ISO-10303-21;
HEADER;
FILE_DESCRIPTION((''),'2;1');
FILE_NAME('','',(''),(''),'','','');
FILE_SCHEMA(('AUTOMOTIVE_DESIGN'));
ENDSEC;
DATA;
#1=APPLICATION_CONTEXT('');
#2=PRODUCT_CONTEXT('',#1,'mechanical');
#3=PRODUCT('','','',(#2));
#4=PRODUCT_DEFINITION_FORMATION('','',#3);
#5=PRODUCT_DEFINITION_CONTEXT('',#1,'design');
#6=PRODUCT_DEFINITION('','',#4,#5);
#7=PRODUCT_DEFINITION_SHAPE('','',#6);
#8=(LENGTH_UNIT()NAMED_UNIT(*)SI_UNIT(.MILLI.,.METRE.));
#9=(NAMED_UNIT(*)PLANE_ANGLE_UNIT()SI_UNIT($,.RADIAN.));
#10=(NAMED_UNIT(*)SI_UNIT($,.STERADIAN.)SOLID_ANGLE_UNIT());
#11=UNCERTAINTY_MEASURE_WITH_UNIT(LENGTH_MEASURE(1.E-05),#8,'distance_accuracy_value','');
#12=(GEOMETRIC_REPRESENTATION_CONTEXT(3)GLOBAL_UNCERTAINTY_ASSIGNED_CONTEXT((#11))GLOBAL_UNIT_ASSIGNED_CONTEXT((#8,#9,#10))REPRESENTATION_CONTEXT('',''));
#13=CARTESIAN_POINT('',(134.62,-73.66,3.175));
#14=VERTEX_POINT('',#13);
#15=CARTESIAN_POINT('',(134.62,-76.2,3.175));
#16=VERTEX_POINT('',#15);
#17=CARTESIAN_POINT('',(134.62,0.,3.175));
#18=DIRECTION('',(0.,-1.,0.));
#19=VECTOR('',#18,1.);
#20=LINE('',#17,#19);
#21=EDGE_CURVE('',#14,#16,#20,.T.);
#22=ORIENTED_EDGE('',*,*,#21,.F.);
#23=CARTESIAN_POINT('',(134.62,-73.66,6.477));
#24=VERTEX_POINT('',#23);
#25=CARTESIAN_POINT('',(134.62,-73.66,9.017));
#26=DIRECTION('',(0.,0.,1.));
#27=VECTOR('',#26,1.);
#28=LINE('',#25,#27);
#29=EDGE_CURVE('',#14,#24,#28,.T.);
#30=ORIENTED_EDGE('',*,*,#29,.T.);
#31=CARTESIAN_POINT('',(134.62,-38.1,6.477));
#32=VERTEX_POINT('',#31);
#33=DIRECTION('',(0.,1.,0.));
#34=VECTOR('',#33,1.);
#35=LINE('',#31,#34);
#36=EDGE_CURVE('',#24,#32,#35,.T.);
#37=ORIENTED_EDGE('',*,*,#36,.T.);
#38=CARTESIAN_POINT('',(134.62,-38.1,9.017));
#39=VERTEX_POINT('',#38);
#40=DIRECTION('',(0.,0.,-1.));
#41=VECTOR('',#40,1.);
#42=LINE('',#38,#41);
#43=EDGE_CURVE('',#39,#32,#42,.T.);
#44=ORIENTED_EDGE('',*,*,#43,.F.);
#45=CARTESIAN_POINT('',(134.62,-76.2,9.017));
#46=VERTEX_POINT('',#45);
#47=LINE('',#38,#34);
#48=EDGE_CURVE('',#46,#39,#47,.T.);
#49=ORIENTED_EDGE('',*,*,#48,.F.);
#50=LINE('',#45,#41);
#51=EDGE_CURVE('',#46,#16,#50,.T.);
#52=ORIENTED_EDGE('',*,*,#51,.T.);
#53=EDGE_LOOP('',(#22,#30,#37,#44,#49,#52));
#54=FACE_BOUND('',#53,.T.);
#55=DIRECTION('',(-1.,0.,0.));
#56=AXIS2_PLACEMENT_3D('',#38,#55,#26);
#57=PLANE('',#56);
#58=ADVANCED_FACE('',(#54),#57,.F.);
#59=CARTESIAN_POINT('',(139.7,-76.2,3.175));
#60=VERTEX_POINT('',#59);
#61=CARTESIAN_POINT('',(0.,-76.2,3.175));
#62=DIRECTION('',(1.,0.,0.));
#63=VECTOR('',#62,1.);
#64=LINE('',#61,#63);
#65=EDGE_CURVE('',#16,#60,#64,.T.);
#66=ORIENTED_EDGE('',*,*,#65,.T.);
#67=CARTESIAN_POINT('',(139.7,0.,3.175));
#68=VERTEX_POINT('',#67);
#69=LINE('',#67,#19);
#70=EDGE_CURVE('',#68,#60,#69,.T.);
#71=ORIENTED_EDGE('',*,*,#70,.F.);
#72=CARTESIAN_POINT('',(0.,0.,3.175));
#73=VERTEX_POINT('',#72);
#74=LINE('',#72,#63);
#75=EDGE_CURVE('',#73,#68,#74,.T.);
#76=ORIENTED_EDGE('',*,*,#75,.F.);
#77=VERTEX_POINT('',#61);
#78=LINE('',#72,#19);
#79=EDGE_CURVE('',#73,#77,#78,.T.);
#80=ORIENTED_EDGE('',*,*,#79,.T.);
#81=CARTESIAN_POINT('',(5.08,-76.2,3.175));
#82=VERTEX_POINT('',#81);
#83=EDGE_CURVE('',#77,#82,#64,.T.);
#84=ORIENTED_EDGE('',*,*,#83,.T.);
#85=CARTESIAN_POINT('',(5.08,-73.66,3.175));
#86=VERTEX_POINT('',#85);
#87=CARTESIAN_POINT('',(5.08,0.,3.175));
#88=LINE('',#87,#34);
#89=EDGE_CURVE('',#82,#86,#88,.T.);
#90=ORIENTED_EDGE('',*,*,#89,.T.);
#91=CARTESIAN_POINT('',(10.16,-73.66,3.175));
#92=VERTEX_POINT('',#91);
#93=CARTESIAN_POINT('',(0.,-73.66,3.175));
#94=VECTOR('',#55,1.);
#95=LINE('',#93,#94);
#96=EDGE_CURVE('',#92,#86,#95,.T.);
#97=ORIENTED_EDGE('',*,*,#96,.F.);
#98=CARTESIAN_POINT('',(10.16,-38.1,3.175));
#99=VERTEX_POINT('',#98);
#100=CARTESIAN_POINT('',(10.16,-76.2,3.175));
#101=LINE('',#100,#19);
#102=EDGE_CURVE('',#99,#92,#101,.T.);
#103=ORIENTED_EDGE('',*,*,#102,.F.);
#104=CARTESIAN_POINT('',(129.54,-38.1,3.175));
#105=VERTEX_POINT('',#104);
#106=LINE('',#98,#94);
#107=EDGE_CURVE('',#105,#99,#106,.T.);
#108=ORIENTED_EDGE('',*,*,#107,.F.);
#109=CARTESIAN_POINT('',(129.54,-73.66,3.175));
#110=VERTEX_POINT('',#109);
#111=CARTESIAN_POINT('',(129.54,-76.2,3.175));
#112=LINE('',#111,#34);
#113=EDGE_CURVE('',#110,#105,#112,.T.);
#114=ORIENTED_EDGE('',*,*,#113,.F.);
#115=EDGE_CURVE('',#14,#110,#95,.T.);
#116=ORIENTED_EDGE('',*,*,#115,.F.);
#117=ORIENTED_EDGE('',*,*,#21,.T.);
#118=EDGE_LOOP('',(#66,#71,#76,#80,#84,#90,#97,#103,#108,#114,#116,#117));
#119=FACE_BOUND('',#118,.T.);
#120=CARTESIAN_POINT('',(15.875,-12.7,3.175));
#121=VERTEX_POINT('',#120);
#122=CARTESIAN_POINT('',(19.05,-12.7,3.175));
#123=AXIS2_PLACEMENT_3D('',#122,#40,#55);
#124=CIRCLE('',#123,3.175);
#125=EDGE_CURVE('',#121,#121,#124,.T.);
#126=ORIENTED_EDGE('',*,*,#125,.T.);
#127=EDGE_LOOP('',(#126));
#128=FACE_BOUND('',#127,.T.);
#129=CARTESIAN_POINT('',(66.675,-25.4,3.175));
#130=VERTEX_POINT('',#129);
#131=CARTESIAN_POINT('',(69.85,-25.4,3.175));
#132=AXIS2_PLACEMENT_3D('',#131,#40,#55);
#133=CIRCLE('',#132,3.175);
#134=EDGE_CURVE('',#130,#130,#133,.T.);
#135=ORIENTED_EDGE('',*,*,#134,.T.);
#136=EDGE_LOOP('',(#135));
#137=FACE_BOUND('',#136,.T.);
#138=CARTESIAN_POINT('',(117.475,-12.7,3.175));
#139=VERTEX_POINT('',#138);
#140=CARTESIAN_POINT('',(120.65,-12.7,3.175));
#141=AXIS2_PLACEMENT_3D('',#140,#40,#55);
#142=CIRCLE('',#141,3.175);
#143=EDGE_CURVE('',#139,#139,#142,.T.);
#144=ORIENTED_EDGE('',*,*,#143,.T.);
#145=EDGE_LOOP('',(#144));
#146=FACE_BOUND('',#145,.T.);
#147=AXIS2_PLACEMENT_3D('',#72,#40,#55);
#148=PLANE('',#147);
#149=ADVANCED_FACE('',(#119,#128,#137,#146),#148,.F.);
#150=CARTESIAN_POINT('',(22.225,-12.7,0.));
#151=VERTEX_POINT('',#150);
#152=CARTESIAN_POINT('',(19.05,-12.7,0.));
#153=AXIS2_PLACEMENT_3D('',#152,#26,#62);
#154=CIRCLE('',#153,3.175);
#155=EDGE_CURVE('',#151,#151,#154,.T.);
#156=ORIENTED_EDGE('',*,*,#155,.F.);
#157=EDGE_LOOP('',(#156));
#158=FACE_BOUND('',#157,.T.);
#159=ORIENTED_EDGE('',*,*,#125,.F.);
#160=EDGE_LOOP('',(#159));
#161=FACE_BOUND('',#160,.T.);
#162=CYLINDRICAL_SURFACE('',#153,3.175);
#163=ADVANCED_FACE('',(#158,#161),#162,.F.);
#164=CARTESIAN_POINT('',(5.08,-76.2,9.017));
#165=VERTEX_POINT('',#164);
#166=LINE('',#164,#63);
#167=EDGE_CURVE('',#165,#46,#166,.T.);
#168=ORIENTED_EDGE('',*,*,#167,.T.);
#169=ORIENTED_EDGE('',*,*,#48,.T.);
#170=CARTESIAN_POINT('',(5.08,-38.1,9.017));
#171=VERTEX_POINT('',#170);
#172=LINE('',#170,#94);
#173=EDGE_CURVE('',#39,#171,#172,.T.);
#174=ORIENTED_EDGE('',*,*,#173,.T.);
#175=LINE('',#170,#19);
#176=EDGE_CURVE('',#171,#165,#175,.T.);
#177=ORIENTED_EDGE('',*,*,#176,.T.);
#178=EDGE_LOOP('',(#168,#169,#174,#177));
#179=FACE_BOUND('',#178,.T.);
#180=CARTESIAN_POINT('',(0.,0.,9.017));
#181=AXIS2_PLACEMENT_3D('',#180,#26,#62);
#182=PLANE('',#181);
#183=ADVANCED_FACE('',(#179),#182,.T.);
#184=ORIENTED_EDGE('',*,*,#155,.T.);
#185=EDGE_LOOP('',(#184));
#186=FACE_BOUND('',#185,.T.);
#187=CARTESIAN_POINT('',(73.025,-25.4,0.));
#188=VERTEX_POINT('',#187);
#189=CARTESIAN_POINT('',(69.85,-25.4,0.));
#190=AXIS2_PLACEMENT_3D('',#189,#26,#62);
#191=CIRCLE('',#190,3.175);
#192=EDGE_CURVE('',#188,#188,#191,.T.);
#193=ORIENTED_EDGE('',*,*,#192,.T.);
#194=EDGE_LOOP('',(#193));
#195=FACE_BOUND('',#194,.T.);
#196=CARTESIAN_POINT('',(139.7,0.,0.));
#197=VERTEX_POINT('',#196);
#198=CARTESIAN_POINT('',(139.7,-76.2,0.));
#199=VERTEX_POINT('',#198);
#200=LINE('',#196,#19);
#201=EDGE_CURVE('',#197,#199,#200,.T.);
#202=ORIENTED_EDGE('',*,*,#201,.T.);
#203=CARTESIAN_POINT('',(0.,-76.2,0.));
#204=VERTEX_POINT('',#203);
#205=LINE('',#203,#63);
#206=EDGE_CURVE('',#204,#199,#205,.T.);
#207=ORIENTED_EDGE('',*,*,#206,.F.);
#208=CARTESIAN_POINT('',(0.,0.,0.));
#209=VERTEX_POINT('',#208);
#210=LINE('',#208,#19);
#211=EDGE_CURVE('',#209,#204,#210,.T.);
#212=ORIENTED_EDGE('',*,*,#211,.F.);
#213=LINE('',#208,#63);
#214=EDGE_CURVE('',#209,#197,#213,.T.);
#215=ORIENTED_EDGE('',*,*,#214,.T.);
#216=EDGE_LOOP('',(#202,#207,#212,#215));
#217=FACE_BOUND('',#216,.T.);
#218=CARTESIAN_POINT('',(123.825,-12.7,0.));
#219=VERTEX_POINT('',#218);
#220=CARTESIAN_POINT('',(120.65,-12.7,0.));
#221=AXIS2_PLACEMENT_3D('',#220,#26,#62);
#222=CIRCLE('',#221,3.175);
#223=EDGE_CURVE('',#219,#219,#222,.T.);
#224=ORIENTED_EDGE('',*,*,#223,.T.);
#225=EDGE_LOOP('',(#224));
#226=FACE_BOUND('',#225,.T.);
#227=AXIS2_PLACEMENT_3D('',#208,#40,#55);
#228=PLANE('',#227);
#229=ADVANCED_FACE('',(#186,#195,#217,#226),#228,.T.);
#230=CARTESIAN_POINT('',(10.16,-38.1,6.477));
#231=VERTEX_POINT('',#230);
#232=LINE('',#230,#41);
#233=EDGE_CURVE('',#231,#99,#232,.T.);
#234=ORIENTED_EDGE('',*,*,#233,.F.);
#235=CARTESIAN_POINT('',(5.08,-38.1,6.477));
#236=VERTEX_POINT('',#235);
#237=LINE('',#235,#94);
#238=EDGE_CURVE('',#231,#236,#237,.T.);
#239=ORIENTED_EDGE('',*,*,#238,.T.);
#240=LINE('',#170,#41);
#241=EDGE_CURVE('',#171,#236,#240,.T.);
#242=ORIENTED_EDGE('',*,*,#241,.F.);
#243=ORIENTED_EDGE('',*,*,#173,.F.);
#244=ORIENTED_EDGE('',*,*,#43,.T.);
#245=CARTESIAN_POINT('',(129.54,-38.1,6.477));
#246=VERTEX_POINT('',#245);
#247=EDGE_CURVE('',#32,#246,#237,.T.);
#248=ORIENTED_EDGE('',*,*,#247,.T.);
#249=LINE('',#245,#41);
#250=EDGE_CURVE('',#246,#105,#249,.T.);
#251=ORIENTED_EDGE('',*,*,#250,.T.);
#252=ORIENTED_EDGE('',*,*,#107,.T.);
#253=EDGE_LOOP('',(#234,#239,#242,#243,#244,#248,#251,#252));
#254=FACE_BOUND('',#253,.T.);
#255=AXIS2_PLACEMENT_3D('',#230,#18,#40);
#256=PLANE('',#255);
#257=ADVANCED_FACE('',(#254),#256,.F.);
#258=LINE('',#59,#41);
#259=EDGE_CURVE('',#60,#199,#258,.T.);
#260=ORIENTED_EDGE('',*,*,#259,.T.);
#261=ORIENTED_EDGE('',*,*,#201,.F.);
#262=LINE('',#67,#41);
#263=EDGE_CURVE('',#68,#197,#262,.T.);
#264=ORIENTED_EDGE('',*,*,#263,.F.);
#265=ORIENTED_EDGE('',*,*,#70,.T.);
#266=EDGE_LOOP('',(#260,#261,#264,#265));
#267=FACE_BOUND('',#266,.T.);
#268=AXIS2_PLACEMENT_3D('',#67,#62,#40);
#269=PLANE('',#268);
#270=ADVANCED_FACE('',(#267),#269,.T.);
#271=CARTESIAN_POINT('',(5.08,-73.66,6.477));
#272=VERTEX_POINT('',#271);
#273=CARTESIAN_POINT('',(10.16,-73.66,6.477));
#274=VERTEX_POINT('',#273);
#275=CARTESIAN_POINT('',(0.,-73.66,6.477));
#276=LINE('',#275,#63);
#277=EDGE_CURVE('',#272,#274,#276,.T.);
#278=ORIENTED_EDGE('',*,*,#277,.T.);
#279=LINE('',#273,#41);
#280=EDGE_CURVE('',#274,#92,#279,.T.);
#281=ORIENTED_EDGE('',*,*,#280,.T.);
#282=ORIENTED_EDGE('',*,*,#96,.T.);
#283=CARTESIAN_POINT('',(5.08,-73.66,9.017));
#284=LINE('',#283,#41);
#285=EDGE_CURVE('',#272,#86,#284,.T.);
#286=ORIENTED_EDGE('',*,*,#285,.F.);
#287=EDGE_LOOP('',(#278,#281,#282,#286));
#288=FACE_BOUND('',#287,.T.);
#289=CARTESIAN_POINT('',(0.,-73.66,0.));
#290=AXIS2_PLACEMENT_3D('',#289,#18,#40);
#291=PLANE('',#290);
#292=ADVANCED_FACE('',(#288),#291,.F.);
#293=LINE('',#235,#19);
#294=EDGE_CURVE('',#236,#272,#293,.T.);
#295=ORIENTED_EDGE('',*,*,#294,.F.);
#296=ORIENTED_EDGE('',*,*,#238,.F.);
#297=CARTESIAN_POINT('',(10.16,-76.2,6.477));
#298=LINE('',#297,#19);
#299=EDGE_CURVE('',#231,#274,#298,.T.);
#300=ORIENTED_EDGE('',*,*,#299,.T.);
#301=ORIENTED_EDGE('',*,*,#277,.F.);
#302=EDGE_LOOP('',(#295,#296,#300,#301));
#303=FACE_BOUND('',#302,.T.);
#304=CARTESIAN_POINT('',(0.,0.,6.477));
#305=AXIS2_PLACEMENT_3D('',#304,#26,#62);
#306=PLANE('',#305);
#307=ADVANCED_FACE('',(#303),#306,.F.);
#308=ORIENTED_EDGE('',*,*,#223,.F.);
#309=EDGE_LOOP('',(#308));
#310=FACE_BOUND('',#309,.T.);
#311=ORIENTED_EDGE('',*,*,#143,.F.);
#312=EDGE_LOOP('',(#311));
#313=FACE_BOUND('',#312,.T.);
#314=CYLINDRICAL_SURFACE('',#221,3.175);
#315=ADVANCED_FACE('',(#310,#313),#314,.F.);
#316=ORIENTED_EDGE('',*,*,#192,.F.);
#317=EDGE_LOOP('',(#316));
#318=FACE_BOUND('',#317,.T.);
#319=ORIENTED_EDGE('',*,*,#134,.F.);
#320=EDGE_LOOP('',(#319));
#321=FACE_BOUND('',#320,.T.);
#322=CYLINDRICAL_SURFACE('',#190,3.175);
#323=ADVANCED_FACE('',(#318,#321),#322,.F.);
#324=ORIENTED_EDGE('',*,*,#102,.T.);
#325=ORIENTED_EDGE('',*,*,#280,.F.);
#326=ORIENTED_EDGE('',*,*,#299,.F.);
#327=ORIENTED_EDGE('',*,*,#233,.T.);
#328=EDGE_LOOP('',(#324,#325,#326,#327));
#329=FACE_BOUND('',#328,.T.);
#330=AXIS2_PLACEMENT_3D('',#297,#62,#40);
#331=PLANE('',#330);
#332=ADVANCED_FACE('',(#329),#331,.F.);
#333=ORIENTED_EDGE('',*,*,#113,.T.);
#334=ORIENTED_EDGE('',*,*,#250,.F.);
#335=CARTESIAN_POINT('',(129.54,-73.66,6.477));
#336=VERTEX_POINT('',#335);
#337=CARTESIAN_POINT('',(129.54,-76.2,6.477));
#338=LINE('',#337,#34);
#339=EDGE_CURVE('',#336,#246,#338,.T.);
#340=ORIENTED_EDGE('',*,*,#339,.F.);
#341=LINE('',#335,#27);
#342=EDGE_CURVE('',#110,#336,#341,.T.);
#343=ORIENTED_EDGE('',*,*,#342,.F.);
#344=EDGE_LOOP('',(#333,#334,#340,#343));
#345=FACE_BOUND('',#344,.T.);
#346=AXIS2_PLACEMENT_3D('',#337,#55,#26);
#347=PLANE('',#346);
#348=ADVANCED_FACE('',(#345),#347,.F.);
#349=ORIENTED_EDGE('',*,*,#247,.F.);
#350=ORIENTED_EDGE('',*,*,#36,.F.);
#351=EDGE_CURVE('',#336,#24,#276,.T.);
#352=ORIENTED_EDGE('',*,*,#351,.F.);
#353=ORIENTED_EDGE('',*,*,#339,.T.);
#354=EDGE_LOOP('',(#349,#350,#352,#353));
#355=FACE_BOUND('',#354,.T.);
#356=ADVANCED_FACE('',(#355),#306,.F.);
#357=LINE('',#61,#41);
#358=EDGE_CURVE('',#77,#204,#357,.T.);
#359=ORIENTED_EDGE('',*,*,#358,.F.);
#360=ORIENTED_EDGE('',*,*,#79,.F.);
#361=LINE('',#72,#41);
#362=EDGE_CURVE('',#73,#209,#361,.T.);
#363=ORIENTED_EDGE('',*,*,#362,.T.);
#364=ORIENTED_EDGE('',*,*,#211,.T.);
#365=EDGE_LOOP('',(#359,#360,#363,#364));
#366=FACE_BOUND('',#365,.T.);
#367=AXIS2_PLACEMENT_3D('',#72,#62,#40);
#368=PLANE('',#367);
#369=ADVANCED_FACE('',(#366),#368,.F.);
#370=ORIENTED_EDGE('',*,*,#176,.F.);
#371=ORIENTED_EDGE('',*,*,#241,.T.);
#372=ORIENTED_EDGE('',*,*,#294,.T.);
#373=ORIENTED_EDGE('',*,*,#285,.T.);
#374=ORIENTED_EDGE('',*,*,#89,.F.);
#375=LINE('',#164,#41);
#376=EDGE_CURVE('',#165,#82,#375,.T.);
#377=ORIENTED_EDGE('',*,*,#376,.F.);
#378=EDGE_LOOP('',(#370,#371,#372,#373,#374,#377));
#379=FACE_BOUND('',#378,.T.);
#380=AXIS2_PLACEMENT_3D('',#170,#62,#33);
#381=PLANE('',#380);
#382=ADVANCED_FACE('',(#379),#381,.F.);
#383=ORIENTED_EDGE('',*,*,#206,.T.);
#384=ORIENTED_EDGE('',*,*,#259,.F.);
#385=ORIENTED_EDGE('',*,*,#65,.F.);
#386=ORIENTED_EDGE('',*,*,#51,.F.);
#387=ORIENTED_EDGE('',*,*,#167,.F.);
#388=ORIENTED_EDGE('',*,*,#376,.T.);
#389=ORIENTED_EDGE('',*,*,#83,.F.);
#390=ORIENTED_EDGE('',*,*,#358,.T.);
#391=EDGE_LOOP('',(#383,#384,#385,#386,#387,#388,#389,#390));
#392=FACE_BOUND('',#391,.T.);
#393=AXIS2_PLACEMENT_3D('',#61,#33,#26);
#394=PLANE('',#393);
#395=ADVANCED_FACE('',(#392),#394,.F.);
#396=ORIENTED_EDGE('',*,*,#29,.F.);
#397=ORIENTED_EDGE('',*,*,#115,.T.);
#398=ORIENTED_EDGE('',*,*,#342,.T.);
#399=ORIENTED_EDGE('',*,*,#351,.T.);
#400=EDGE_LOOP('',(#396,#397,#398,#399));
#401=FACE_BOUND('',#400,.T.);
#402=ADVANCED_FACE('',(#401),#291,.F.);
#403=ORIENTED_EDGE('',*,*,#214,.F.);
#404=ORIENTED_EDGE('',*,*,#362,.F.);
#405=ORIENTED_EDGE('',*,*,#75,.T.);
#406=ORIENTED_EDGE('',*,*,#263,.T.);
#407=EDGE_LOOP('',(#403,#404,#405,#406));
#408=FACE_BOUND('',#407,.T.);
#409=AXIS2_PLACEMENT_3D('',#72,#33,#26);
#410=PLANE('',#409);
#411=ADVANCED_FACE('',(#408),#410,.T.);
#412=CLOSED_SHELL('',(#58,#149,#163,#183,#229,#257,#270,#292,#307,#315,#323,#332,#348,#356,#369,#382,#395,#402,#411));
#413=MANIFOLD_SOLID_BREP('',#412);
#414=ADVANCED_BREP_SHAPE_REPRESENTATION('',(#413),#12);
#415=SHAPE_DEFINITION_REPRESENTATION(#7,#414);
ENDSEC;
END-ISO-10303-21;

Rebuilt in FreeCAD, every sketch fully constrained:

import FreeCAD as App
import Part
import Sketcher
Q = App.Units.Quantity


def add_polygon(sketch, points):
    """Adds a closed chain of lines whose ends are joined by coincident constraints."""
    first, n = sketch.GeometryCount, len(points)
    for a, b in zip(points, points[1:] + points[:1]):
        sketch.addGeometry(Part.LineSegment(App.Vector(*a, 0), App.Vector(*b, 0)), False)
    for i in range(n):
        sketch.addConstraint(Sketcher.Constraint("Coincident", first + i, 2, first + (i + 1) % n, 1))

doc = App.newDocument("Part")
params = doc.addObject("Spreadsheet::Sheet", "Params")
for row, (alias, value) in enumerate([
    ("sketch1_height", "3 in"),
    ("sketch1_width", "5.5 in"),
    ("pad1_length", "0.125 in"),
    ("sketch2_width", "4.7 in"),
    ("sketch2_height", "1.5 in"),
    ("pad2_length", "0.13 in"),
    ("sketch3_width", "5.1 in"),
    ("sketch3_height", "1.5 in"),
    ("pad3_length", "0.1 in"),
    ("sketch4_width", "5.1 in"),
    ("sketch4_height", "0.355 in"),
    ("pad4_length", "0.1 in"),
    ("sketch5_diameter", "0.25 in"),
], start=1):
    params.set(f"A{row}", alias)
    params.set(f"B{row}", "=" + value)
    params.setAlias(f"B{row}", alias)

body = doc.addObject("PartDesign::Body", "Body")

# Sketch on XY plane
sketch1 = doc.addObject("Sketcher::SketchObject", "Sketch")
body.addObject(sketch1)
sketch1.AttachmentSupport = (doc.XY_Plane, [""])
sketch1.MapMode = "FlatFace"
add_polygon(sketch1, [(0, 0), (0, -76), (140, -76), (140, 0)])  # lines 0-3
sketch1.addConstraint([
    Sketcher.Constraint("Vertical", 0),
    Sketcher.Constraint("Horizontal", 1),
    Sketcher.Constraint("Vertical", 2),
    Sketcher.Constraint("Horizontal", 3),
    Sketcher.Constraint("Coincident", 3, 2, -1, 1),
    Sketcher.Constraint("DistanceY", 0, 2, 0, 1, Q("3 in")),
    Sketcher.Constraint("DistanceX", 1, 1, 1, 2, Q("5.5 in")),
])
sketch1.setExpression("Constraints[9]", "Params.sketch1_height")
sketch1.setExpression("Constraints[10]", "Params.sketch1_width")
pad1 = doc.addObject("PartDesign::Pad", "Pad")
body.addObject(pad1)
pad1.Profile = sketch1
pad1.setExpression("Length", "Params.pad1_length")

# Sketch on XY plane
sketch2 = doc.addObject("Sketcher::SketchObject", "Sketch001")
body.addObject(sketch2)
sketch2.AttachmentSupport = (doc.XY_Plane, [""])
sketch2.MapMode = "FlatFace"
sketch2.AttachmentOffset = App.Placement(App.Vector(0, 0, 0.125 * 25.4), App.Rotation())
add_polygon(sketch2, [(10, -38), (10, -76), (130, -76), (130, -38)])  # lines 0-3
sketch2.addConstraint([
    Sketcher.Constraint("Vertical", 0),
    Sketcher.Constraint("Horizontal", 1),
    Sketcher.Constraint("Vertical", 2),
    Sketcher.Constraint("Horizontal", 3),
    Sketcher.Constraint("DistanceX", 1, 1, 1, 2, Q("4.7 in")),
    Sketcher.Constraint("DistanceY", 0, 2, 0, 1, Q("1.5 in")),
    Sketcher.Constraint("DistanceY", 0, 2, -1, 1, Q("3 in")),
    Sketcher.Constraint("DistanceX", -1, 1, 0, 2, Q("0.4 in")),
])
sketch2.setExpression("Constraints[8]", "Params.sketch2_width")
sketch2.setExpression("Constraints[9]", "Params.sketch2_height")
pad2 = doc.addObject("PartDesign::Pad", "Pad001")
body.addObject(pad2)
pad2.Profile = sketch2
pad2.setExpression("Length", "Params.pad2_length")

# Sketch on XY plane
sketch3 = doc.addObject("Sketcher::SketchObject", "Sketch002")
body.addObject(sketch3)
sketch3.AttachmentSupport = (doc.XY_Plane, [""])
sketch3.MapMode = "FlatFace"
sketch3.AttachmentOffset = App.Placement(App.Vector(0, 0, 0.255 * 25.4), App.Rotation())
add_polygon(sketch3, [(5, -38), (5, -76), (135, -76), (135, -38)])  # lines 0-3
sketch3.addConstraint([
    Sketcher.Constraint("Vertical", 0),
    Sketcher.Constraint("Horizontal", 1),
    Sketcher.Constraint("Vertical", 2),
    Sketcher.Constraint("Horizontal", 3),
    Sketcher.Constraint("DistanceX", 1, 1, 1, 2, Q("5.1 in")),
    Sketcher.Constraint("DistanceY", 0, 2, 0, 1, Q("1.5 in")),
    Sketcher.Constraint("DistanceY", 0, 2, -1, 1, Q("3 in")),
    Sketcher.Constraint("DistanceX", -1, 1, 0, 2, Q("0.2 in")),
])
sketch3.setExpression("Constraints[8]", "Params.sketch3_width")
sketch3.setExpression("Constraints[9]", "Params.sketch3_height")
pad3 = doc.addObject("PartDesign::Pad", "Pad002")
body.addObject(pad3)
pad3.Profile = sketch3
pad3.setExpression("Length", "Params.pad3_length")

# Sketch on XZ plane
sketch4 = doc.addObject("Sketcher::SketchObject", "Sketch003")
body.addObject(sketch4)
sketch4.AttachmentSupport = (doc.XZ_Plane, [""])
sketch4.MapMode = "FlatFace"
sketch4.AttachmentOffset = App.Placement(App.Vector(0, 0, 3 * 25.4), App.Rotation())
add_polygon(sketch4, [(5, 9), (5, 0), (135, 0), (135, 9)])  # lines 0-3
sketch4.addConstraint([
    Sketcher.Constraint("Vertical", 0),
    Sketcher.Constraint("Horizontal", 1),
    Sketcher.Constraint("Vertical", 2),
    Sketcher.Constraint("Horizontal", 3),
    Sketcher.Constraint("PointOnObject", 0, 2, -1),
    Sketcher.Constraint("DistanceX", 1, 1, 1, 2, Q("5.1 in")),
    Sketcher.Constraint("DistanceX", -1, 1, 0, 2, Q("0.2 in")),
    Sketcher.Constraint("DistanceY", 0, 2, 0, 1, Q("0.355 in")),
])
sketch4.setExpression("Constraints[9]", "Params.sketch4_width")
sketch4.setExpression("Constraints[11]", "Params.sketch4_height")
pad4 = doc.addObject("PartDesign::Pad", "Pad003")
body.addObject(pad4)
pad4.Profile = sketch4
pad4.setExpression("Length", "Params.pad4_length")
pad4.Reversed = True

# Sketch on XY plane
sketch5 = doc.addObject("Sketcher::SketchObject", "Sketch004")
body.addObject(sketch5)
sketch5.AttachmentSupport = (doc.XY_Plane, [""])
sketch5.MapMode = "FlatFace"
sketch5.AttachmentOffset = App.Placement(App.Vector(0, 0, 0.125 * 25.4), App.Rotation())
sketch5.addGeometry([
    Part.Circle(App.Vector(19.1, -12.7, 0), App.Vector(0, 0, 1), 3.2),
    Part.Circle(App.Vector(69.8, -25.4, 0), App.Vector(0, 0, 1), 3.2),
    Part.Circle(App.Vector(120.7, -12.7, 0), App.Vector(0, 0, 1), 3.2),
], False)
sketch5.addConstraint([
    Sketcher.Constraint("Equal", 0, 1),
    Sketcher.Constraint("Equal", 1, 2),
    Sketcher.Constraint("Horizontal", 0, 3, 2, 3),
    Sketcher.Constraint("Diameter", 0, Q("0.25 in")),
    Sketcher.Constraint("DistanceY", 1, 3, -1, 1, Q("1 in")),
    Sketcher.Constraint("DistanceX", 0, 3, 1, 3, Q("2 in")),
    Sketcher.Constraint("DistanceX", 1, 3, 2, 3, Q("2 in")),
    Sketcher.Constraint("DistanceY", 0, 3, -1, 1, Q("0.5 in")),
    Sketcher.Constraint("DistanceX", -1, 1, 0, 3, Q("0.75 in")),
])
sketch5.setExpression("Constraints[3]", "Params.sketch5_diameter")
pocket1 = doc.addObject("PartDesign::Pocket", "Pocket")
body.addObject(pocket1)
pocket1.Profile = sketch5
pocket1.Type = "ThroughAll"
pocket1.Midplane = True

doc.recompute()
